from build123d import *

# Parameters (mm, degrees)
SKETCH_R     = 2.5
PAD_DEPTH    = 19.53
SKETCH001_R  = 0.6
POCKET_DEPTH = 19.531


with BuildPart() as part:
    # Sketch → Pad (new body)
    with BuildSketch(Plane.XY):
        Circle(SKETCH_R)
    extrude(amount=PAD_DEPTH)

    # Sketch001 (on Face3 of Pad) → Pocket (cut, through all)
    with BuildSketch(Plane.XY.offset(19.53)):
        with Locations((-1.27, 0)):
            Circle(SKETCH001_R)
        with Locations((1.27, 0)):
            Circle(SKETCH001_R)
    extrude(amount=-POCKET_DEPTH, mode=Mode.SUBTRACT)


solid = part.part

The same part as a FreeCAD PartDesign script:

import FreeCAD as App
import Part
import Sketcher
Q = App.Units.Quantity

doc = App.newDocument("Part")
body = doc.addObject("PartDesign::Body", "Body")

# Sketch on XY plane
sketch1 = body.newObject("Sketcher::SketchObject", "Sketch")
sketch1.AttachmentSupport = (doc.getObject("XY_Plane"), [""])
sketch1.MapMode = "FlatFace"
sketch1.addGeometry(Part.Circle(App.Vector(0, 0, 0), App.Vector(0, 0, 1), 2.5), False)
sketch1.addConstraint(Sketcher.Constraint("Coincident", 0, 3, -1, 1))
sketch1.addConstraint(Sketcher.Constraint("Diameter", 0, Q("5 mm")))
pad1 = body.newObject("PartDesign::Pad", "Pad")
pad1.Profile = sketch1
pad1.Length = 19.53

# Sketch on XY plane
sketch2 = body.newObject("Sketcher::SketchObject", "Sketch001")
sketch2.AttachmentSupport = (doc.getObject("XY_Plane"), [""])
sketch2.MapMode = "FlatFace"
sketch2.AttachmentOffset = App.Placement(App.Vector(0, 0, 19.53), App.Rotation())
sketch2.addGeometry(Part.Circle(App.Vector(-1.3, 0, 0), App.Vector(0, 0, 1), 0.6), False)
sketch2.addGeometry(Part.Circle(App.Vector(1.3, 0, 0), App.Vector(0, 0, 1), 0.6), False)
sketch2.addConstraint(Sketcher.Constraint("Equal", 0, 1))
sketch2.addConstraint(Sketcher.Constraint("Symmetric", 0, 3, 1, 3, -1, 1))
sketch2.addConstraint(Sketcher.Constraint("PointOnObject", 0, 3, -1))
sketch2.addConstraint(Sketcher.Constraint("Diameter", 0, Q("1.2 mm")))
sketch2.addConstraint(Sketcher.Constraint("DistanceX", 0, 3, -1, 1, Q("1.27 mm")))
pocket1 = body.newObject("PartDesign::Pocket", "Pocket")
pocket1.Profile = sketch2
pocket1.Type = "ThroughAll"

doc.recompute()
